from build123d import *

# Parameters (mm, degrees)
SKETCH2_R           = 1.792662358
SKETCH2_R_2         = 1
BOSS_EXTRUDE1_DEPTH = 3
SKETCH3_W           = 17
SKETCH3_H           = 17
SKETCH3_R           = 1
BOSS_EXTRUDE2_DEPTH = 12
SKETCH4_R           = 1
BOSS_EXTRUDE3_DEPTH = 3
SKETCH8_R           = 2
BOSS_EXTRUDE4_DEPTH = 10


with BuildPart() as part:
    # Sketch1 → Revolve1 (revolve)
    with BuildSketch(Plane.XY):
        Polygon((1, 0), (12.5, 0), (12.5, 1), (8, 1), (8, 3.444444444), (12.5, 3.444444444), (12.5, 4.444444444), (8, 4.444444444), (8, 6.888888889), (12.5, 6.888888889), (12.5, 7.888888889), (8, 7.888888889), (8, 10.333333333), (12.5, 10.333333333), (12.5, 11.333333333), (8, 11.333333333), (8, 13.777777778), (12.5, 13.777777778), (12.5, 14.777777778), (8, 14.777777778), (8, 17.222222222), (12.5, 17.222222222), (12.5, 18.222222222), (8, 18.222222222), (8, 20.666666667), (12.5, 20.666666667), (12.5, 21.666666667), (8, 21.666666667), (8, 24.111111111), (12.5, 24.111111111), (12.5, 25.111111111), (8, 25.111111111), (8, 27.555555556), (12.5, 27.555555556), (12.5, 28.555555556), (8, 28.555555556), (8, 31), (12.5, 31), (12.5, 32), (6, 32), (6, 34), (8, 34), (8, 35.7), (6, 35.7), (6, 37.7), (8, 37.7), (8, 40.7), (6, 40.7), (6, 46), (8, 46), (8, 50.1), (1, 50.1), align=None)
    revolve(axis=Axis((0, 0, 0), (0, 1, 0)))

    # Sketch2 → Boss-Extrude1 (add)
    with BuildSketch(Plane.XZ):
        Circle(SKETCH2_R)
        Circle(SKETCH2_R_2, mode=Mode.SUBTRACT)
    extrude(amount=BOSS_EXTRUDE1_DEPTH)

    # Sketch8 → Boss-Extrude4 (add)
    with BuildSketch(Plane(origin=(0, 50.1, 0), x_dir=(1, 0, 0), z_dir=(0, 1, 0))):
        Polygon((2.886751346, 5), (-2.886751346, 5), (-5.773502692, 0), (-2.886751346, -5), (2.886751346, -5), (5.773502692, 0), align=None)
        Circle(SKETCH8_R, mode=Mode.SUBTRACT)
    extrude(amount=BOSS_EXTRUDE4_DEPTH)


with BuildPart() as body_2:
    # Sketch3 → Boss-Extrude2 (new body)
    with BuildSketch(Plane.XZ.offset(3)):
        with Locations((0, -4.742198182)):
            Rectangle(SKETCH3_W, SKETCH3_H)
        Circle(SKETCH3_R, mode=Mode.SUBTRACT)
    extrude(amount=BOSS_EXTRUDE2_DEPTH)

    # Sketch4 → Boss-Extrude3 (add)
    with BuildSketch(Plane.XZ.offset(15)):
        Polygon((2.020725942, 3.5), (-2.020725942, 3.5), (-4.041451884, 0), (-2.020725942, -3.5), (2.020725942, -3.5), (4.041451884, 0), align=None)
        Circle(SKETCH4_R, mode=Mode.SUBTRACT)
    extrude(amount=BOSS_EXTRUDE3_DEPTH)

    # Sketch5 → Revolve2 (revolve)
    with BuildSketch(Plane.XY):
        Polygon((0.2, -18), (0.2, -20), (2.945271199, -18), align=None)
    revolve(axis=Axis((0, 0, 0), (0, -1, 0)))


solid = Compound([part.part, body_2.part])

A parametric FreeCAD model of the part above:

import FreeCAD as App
import Part
import Sketcher

V = App.Vector
Q = App.Units.Quantity

doc = App.newDocument("Part")
params = doc.addObject("Spreadsheet::Sheet", "Params")
for row, (alias, value) in enumerate([
    ("sketch1_width", "2 mm"),
    ("sketch1_width2", "7 mm"),
    ("sketch1_height", "1 mm"),
    ("sketch1_height2", "3 mm"),
    ("sketch1_width3", "11.5 mm"),
    ("revolution_angle", "360 deg"),
    ("sketch2_diameter", "2 mm"),
    ("pad1_length", "3 mm"),
    ("sketch3_diameter", "4 mm"),
    ("pad2_length", "10 mm"),
    ("sketch4_diameter", "2 mm"),
    ("sketch4_width", "17 mm"),
    ("pad3_length", "12 mm"),
    ("sketch5_diameter", "2 mm"),
    ("pad4_length", "3 mm"),
    ("sketch6_height", "2 mm"),
    ("revolution2_angle", "360 deg"),
], start=1):
    params.set(f"A{row}", alias)
    params.set(f"B{row}", "=" + value)
    params.setAlias(f"B{row}", alias)

body = doc.addObject("PartDesign::Body", "Body")

# Sketch on XY plane
sketch1 = body.newObject("Sketcher::SketchObject", "Sketch")
sketch1.AttachmentSupport = (doc.getObject("XY_Plane"), [""])
sketch1.MapMode = "FlatFace"
sketch1.addGeometry([
    Part.LineSegment(V(1, 0, 0), V(12.5, 0, 0)),  # 0
    Part.LineSegment(V(12.5, 0, 0), V(12.5, 1, 0)),  # 1
    Part.LineSegment(V(12.5, 1, 0), V(8, 1, 0)),  # 2
    Part.LineSegment(V(8, 1, 0), V(8, 3.4, 0)),  # 3
    Part.LineSegment(V(8, 3.4, 0), V(12.5, 3.4, 0)),  # 4
    Part.LineSegment(V(12.5, 3.4, 0), V(12.5, 4.4, 0)),  # 5
    Part.LineSegment(V(12.5, 4.4, 0), V(8, 4.4, 0)),  # 6
    Part.LineSegment(V(8, 4.4, 0), V(8, 6.9, 0)),  # 7
    Part.LineSegment(V(8, 6.9, 0), V(12.5, 6.9, 0)),  # 8
    Part.LineSegment(V(12.5, 6.9, 0), V(12.5, 7.9, 0)),  # 9
    Part.LineSegment(V(12.5, 7.9, 0), V(8, 7.9, 0)),  # 10
    Part.LineSegment(V(8, 7.9, 0), V(8, 10.3, 0)),  # 11
    Part.LineSegment(V(8, 10.3, 0), V(12.5, 10.3, 0)),  # 12
    Part.LineSegment(V(12.5, 10.3, 0), V(12.5, 11.3, 0)),  # 13
    Part.LineSegment(V(12.5, 11.3, 0), V(8, 11.3, 0)),  # 14
    Part.LineSegment(V(8, 11.3, 0), V(8, 13.8, 0)),  # 15
    Part.LineSegment(V(8, 13.8, 0), V(12.5, 13.8, 0)),  # 16
    Part.LineSegment(V(12.5, 13.8, 0), V(12.5, 14.8, 0)),  # 17
    Part.LineSegment(V(12.5, 14.8, 0), V(8, 14.8, 0)),  # 18
    Part.LineSegment(V(8, 14.8, 0), V(8, 17.2, 0)),  # 19
    Part.LineSegment(V(8, 17.2, 0), V(12.5, 17.2, 0)),  # 20
    Part.LineSegment(V(12.5, 17.2, 0), V(12.5, 18.2, 0)),  # 21
    Part.LineSegment(V(12.5, 18.2, 0), V(8, 18.2, 0)),  # 22
    Part.LineSegment(V(8, 18.2, 0), V(8, 20.7, 0)),  # 23
    Part.LineSegment(V(8, 20.7, 0), V(12.5, 20.7, 0)),  # 24
    Part.LineSegment(V(12.5, 20.7, 0), V(12.5, 21.7, 0)),  # 25
    Part.LineSegment(V(12.5, 21.7, 0), V(8, 21.7, 0)),  # 26
    Part.LineSegment(V(8, 21.7, 0), V(8, 24.1, 0)),  # 27
    Part.LineSegment(V(8, 24.1, 0), V(12.5, 24.1, 0)),  # 28
    Part.LineSegment(V(12.5, 24.1, 0), V(12.5, 25.1, 0)),  # 29
    Part.LineSegment(V(12.5, 25.1, 0), V(8, 25.1, 0)),  # 30
    Part.LineSegment(V(8, 25.1, 0), V(8, 27.6, 0)),  # 31
    Part.LineSegment(V(8, 27.6, 0), V(12.5, 27.6, 0)),  # 32
    Part.LineSegment(V(12.5, 27.6, 0), V(12.5, 28.6, 0)),  # 33
    Part.LineSegment(V(12.5, 28.6, 0), V(8, 28.6, 0)),  # 34
    Part.LineSegment(V(8, 28.6, 0), V(8, 31, 0)),  # 35
    Part.LineSegment(V(8, 31, 0), V(12.5, 31, 0)),  # 36
    Part.LineSegment(V(12.5, 31, 0), V(12.5, 32, 0)),  # 37
    Part.LineSegment(V(12.5, 32, 0), V(6, 32, 0)),  # 38
    Part.LineSegment(V(6, 32, 0), V(6, 34, 0)),  # 39
    Part.LineSegment(V(6, 34, 0), V(8, 34, 0)),  # 40
    Part.LineSegment(V(8, 34, 0), V(8, 35.7, 0)),  # 41
    Part.LineSegment(V(8, 35.7, 0), V(6, 35.7, 0)),  # 42
    Part.LineSegment(V(6, 35.7, 0), V(6, 37.7, 0)),  # 43
    Part.LineSegment(V(6, 37.7, 0), V(8, 37.7, 0)),  # 44
    Part.LineSegment(V(8, 37.7, 0), V(8, 40.7, 0)),  # 45
    Part.LineSegment(V(8, 40.7, 0), V(6, 40.7, 0)),  # 46
    Part.LineSegment(V(6, 40.7, 0), V(6, 46, 0)),  # 47
    Part.LineSegment(V(6, 46, 0), V(8, 46, 0)),  # 48
    Part.LineSegment(V(8, 46, 0), V(8, 50.1, 0)),  # 49
    Part.LineSegment(V(8, 50.1, 0), V(1, 50.1, 0)),  # 50
    Part.LineSegment(V(1, 50.1, 0), V(1, 0, 0)),  # 51
], False)
sketch1.addConstraint([
    Sketcher.Constraint("Coincident", 0, 2, 1, 1),
    Sketcher.Constraint("Coincident", 1, 2, 2, 1),
    Sketcher.Constraint("Coincident", 2, 2, 3, 1),
    Sketcher.Constraint("Coincident", 3, 2, 4, 1),
    Sketcher.Constraint("Coincident", 4, 2, 5, 1),
    Sketcher.Constraint("Coincident", 5, 2, 6, 1),
    Sketcher.Constraint("Coincident", 6, 2, 7, 1),
    Sketcher.Constraint("Coincident", 7, 2, 8, 1),
    Sketcher.Constraint("Coincident", 8, 2, 9, 1),
    Sketcher.Constraint("Coincident", 9, 2, 10, 1),
    Sketcher.Constraint("Coincident", 10, 2, 11, 1),
    Sketcher.Constraint("Coincident", 11, 2, 12, 1),
    Sketcher.Constraint("Coincident", 12, 2, 13, 1),
    Sketcher.Constraint("Coincident", 13, 2, 14, 1),
    Sketcher.Constraint("Coincident", 14, 2, 15, 1),
    Sketcher.Constraint("Coincident", 15, 2, 16, 1),
    Sketcher.Constraint("Coincident", 16, 2, 17, 1),
    Sketcher.Constraint("Coincident", 17, 2, 18, 1),
    Sketcher.Constraint("Coincident", 18, 2, 19, 1),
    Sketcher.Constraint("Coincident", 19, 2, 20, 1),
    Sketcher.Constraint("Coincident", 20, 2, 21, 1),
    Sketcher.Constraint("Coincident", 21, 2, 22, 1),
    Sketcher.Constraint("Coincident", 22, 2, 23, 1),
    Sketcher.Constraint("Coincident", 23, 2, 24, 1),
    Sketcher.Constraint("Coincident", 24, 2, 25, 1),
    Sketcher.Constraint("Coincident", 25, 2, 26, 1),
    Sketcher.Constraint("Coincident", 26, 2, 27, 1),
    Sketcher.Constraint("Coincident", 27, 2, 28, 1),
    Sketcher.Constraint("Coincident", 28, 2, 29, 1),
    Sketcher.Constraint("Coincident", 29, 2, 30, 1),
    Sketcher.Constraint("Coincident", 30, 2, 31, 1),
    Sketcher.Constraint("Coincident", 31, 2, 32, 1),
    Sketcher.Constraint("Coincident", 32, 2, 33, 1),
    Sketcher.Constraint("Coincident", 33, 2, 34, 1),
    Sketcher.Constraint("Coincident", 34, 2, 35, 1),
    Sketcher.Constraint("Coincident", 35, 2, 36, 1),
    Sketcher.Constraint("Coincident", 36, 2, 37, 1),
    Sketcher.Constraint("Coincident", 37, 2, 38, 1),
    Sketcher.Constraint("Coincident", 38, 2, 39, 1),
    Sketcher.Constraint("Coincident", 39, 2, 40, 1),
    Sketcher.Constraint("Coincident", 40, 2, 41, 1),
    Sketcher.Constraint("Coincident", 41, 2, 42, 1),
    Sketcher.Constraint("Coincident", 42, 2, 43, 1),
    Sketcher.Constraint("Coincident", 43, 2, 44, 1),
    Sketcher.Constraint("Coincident", 44, 2, 45, 1),
    Sketcher.Constraint("Coincident", 45, 2, 46, 1),
    Sketcher.Constraint("Coincident", 46, 2, 47, 1),
    Sketcher.Constraint("Coincident", 47, 2, 48, 1),
    Sketcher.Constraint("Coincident", 48, 2, 49, 1),
    Sketcher.Constraint("Coincident", 49, 2, 50, 1),
    Sketcher.Constraint("Coincident", 50, 2, 51, 1),
    Sketcher.Constraint("Coincident", 51, 2, 0, 1),
    Sketcher.Constraint("Horizontal", 0),
    Sketcher.Constraint("Vertical", 1),
    Sketcher.Constraint("Horizontal", 2),
    Sketcher.Constraint("Vertical", 3),
    Sketcher.Constraint("Horizontal", 4),
    Sketcher.Constraint("Vertical", 5),
    Sketcher.Constraint("Horizontal", 6),
    Sketcher.Constraint("Vertical", 7),
    Sketcher.Constraint("Horizontal", 8),
    Sketcher.Constraint("Vertical", 9),
    Sketcher.Constraint("Horizontal", 10),
    Sketcher.Constraint("Vertical", 11),
    Sketcher.Constraint("Horizontal", 12),
    Sketcher.Constraint("Vertical", 13),
    Sketcher.Constraint("Horizontal", 14),
    Sketcher.Constraint("Vertical", 15),
    Sketcher.Constraint("Horizontal", 16),
    Sketcher.Constraint("Vertical", 17),
    Sketcher.Constraint("Horizontal", 18),
    Sketcher.Constraint("Vertical", 19),
    Sketcher.Constraint("Horizontal", 20),
    Sketcher.Constraint("Vertical", 21),
    Sketcher.Constraint("Horizontal", 22),
    Sketcher.Constraint("Vertical", 23),
    Sketcher.Constraint("Horizontal", 24),
    Sketcher.Constraint("Vertical", 25),
    Sketcher.Constraint("Horizontal", 26),
    Sketcher.Constraint("Vertical", 27),
    Sketcher.Constraint("Horizontal", 28),
    Sketcher.Constraint("Vertical", 29),
    Sketcher.Constraint("Horizontal", 30),
    Sketcher.Constraint("Vertical", 31),
    Sketcher.Constraint("Horizontal", 32),
    Sketcher.Constraint("Vertical", 33),
    Sketcher.Constraint("Horizontal", 34),
    Sketcher.Constraint("Vertical", 35),
    Sketcher.Constraint("Horizontal", 36),
    Sketcher.Constraint("Vertical", 37),
    Sketcher.Constraint("Horizontal", 38),
    Sketcher.Constraint("Vertical", 39),
    Sketcher.Constraint("Horizontal", 40),
    Sketcher.Constraint("Vertical", 41),
    Sketcher.Constraint("Horizontal", 42),
    Sketcher.Constraint("Vertical", 43),
    Sketcher.Constraint("Horizontal", 44),
    Sketcher.Constraint("Vertical", 45),
    Sketcher.Constraint("Horizontal", 46),
    Sketcher.Constraint("Vertical", 47),
    Sketcher.Constraint("Horizontal", 48),
    Sketcher.Constraint("Vertical", 49),
    Sketcher.Constraint("Horizontal", 50),
    Sketcher.Constraint("Vertical", 51),
    Sketcher.Constraint("PointOnObject", 0, 2, -1),
    Sketcher.Constraint("Vertical", 1, 2, 4, 2),
    Sketcher.Constraint("Vertical", 3, 2, 6, 2),
    Sketcher.Constraint("Vertical", 5, 2, 8, 2),
    Sketcher.Constraint("Vertical", 7, 2, 10, 2),
    Sketcher.Constraint("Vertical", 9, 2, 12, 2),
    Sketcher.Constraint("Vertical", 11, 2, 14, 2),
    Sketcher.Constraint("Vertical", 13, 2, 16, 2),
    Sketcher.Constraint("Vertical", 15, 2, 18, 2),
    Sketcher.Constraint("Vertical", 17, 2, 20, 2),
    Sketcher.Constraint("Vertical", 19, 2, 22, 2),
    Sketcher.Constraint("Vertical", 21, 2, 24, 2),
    Sketcher.Constraint("Vertical", 23, 2, 26, 2),
    Sketcher.Constraint("Vertical", 25, 2, 28, 2),
    Sketcher.Constraint("Vertical", 27, 2, 30, 2),
    Sketcher.Constraint("Vertical", 29, 2, 32, 2),
    Sketcher.Constraint("Vertical", 31, 2, 34, 2),
    Sketcher.Constraint("Vertical", 33, 2, 36, 2),
    Sketcher.Constraint("Vertical", 35, 2, 40, 2),
    Sketcher.Constraint("Vertical", 39, 2, 42, 2),
    Sketcher.Constraint("Vertical", 41, 2, 44, 2),
    Sketcher.Constraint("Vertical", 43, 2, 46, 2),
    Sketcher.Constraint("Vertical", 45, 2, 48, 2),
    Sketcher.Constraint("Equal", 1, 5),
    Sketcher.Constraint("Equal", 3, 7),
    Sketcher.Constraint("Equal", 5, 9),
    Sketcher.Constraint("Equal", 7, 11),
    Sketcher.Constraint("Equal", 9, 13),
    Sketcher.Constraint("Equal", 11, 15),
    Sketcher.Constraint("Equal", 13, 17),
    Sketcher.Constraint("Equal", 15, 19),
    Sketcher.Constraint("Equal", 17, 21),
    Sketcher.Constraint("Equal", 19, 23),
    Sketcher.Constraint("Equal", 21, 25),
    Sketcher.Constraint("Equal", 23, 27),
    Sketcher.Constraint("Equal", 25, 29),
    Sketcher.Constraint("Equal", 27, 31),
    Sketcher.Constraint("Equal", 29, 33),
    Sketcher.Constraint("Equal", 31, 35),
    Sketcher.Constraint("Equal", 33, 37),
    Sketcher.Constraint("Equal", 48, 39),
    Sketcher.Constraint("Equal", 39, 43),
    Sketcher.Constraint("DistanceX", 40, 1, 40, 2, 2.0),
    Sketcher.Constraint("DistanceX", 50, 2, 50, 1, 7.0),
    Sketcher.Constraint("DistanceY", 1, 1, 1, 2, 1.0),
    Sketcher.Constraint("DistanceY", 45, 1, 45, 2, 3.0),
    Sketcher.Constraint("DistanceX", 0, 1, 0, 2, 11.5),
    Sketcher.Constraint("DistanceY", 41, 1, 41, 2, 1.7),
    Sketcher.Constraint("DistanceY", 47, 1, 47, 2, 5.3),
    Sketcher.Constraint("DistanceY", 49, 1, 49, 2, 4.1),
    Sketcher.Constraint("DistanceY", 51, 2, 51, 1, 50.1),
    Sketcher.Constraint("DistanceX", -1, 1, 2, 2, 8.0),
])
sketch1.setExpression("Constraints[146]", "Params.sketch1_width")
sketch1.setExpression("Constraints[147]", "Params.sketch1_width2")
sketch1.setExpression("Constraints[148]", "Params.sketch1_height")
sketch1.setExpression("Constraints[149]", "Params.sketch1_height2")
sketch1.setExpression("Constraints[150]", "Params.sketch1_width3")
revolution = body.newObject("PartDesign::Revolution", "Revolution")
revolution.Profile = sketch1
revolution.ReferenceAxis = (sketch1, ["V_Axis"])
revolution.setExpression("Angle", "Params.revolution_angle")

# Sketch on XZ plane
sketch2 = body.newObject("Sketcher::SketchObject", "Sketch001")
sketch2.AttachmentSupport = (doc.getObject("XZ_Plane"), [""])
sketch2.MapMode = "FlatFace"
sketch2.addGeometry([
    Part.Circle(V(0, 0, 0), V(0, 0, 1), 1.8),
    Part.Circle(V(0, 0, 0), V(0, 0, 1), 1),
], False)
sketch2.addConstraint([
    Sketcher.Constraint("Coincident", 0, 3, -1, 1),
    Sketcher.Constraint("Coincident", 1, 3, -1, 1),
    Sketcher.Constraint("Diameter", 1, 2.0),
    Sketcher.Constraint("Diameter", 0, 3.585325),
])
sketch2.setExpression("Constraints[2]", "Params.sketch2_diameter")
pad1 = body.newObject("PartDesign::Pad", "Pad")
pad1.Profile = sketch2
pad1.setExpression("Length", "Params.pad1_length")

# Sketch on XZ plane
sketch3 = body.newObject("Sketcher::SketchObject", "Sketch002")
sketch3.AttachmentSupport = (doc.getObject("XZ_Plane"), [""])
sketch3.MapMode = "FlatFace"
sketch3.AttachmentOffset = App.Placement(V(0, 0, -50.1), App.Rotation())
sketch3.addGeometry([
    Part.LineSegment(V(2.9, -5, 0), V(-2.9, -5, 0)),  # 0
    Part.LineSegment(V(-2.9, -5, 0), V(-5.8, 0, 0)),  # 1
    Part.LineSegment(V(-5.8, 0, 0), V(-2.9, 5, 0)),  # 2
    Part.LineSegment(V(-2.9, 5, 0), V(2.9, 5, 0)),  # 3
    Part.LineSegment(V(2.9, 5, 0), V(5.8, 0, 0)),  # 4
    Part.LineSegment(V(5.8, 0, 0), V(2.9, -5, 0)),  # 5
    Part.Circle(V(0, 0, 0), V(0, 0, 1), 2),  # 6
], False)
sketch3.addConstraint([
    Sketcher.Constraint("Coincident", 0, 2, 1, 1),
    Sketcher.Constraint("Coincident", 1, 2, 2, 1),
    Sketcher.Constraint("Coincident", 2, 2, 3, 1),
    Sketcher.Constraint("Coincident", 3, 2, 4, 1),
    Sketcher.Constraint("Coincident", 4, 2, 5, 1),
    Sketcher.Constraint("Coincident", 5, 2, 0, 1),
    Sketcher.Constraint("Horizontal", 0),
    Sketcher.Constraint("Horizontal", 3),
    Sketcher.Constraint("Coincident", 6, 3, -1, 1),
    Sketcher.Constraint("Symmetric", 0, 2, 3, 2, -1, 1),
    Sketcher.Constraint("Symmetric", 1, 2, 4, 2, -1, 1),
    Sketcher.Constraint("PointOnObject", 1, 2, -1),
    Sketcher.Constraint("Parallel", 2, 5),
    Sketcher.Constraint("Vertical", 0, 2, 2, 2),
    Sketcher.Constraint("Diameter", 6, 4.0),
    Sketcher.Constraint("Angle", 1, Q("120 deg")),
    Sketcher.Constraint("DistanceY", 0, 2, -1, 1, 5.0),
    Sketcher.Constraint("DistanceX", 0, 2, 0, 1, 5.773503),
])
sketch3.setExpression("Constraints[14]", "Params.sketch3_diameter")
pad2 = body.newObject("PartDesign::Pad", "Pad001")
pad2.Profile = sketch3
pad2.setExpression("Length", "Params.pad2_length")
pad2.Reversed = True
body2 = doc.addObject("PartDesign::Body", "Body001")

# Sketch on XZ plane
sketch4 = body2.newObject("Sketcher::SketchObject", "Sketch003")
sketch4.AttachmentSupport = (doc.getObject("XZ_Plane001"), [""])
sketch4.MapMode = "FlatFace"
sketch4.AttachmentOffset = App.Placement(V(0, 0, 3), App.Rotation())
sketch4.addGeometry([
    Part.LineSegment(V(-8.5, 3.8, 0), V(-8.5, -13.2, 0)),  # 0
    Part.LineSegment(V(-8.5, -13.2, 0), V(8.5, -13.2, 0)),  # 1
    Part.LineSegment(V(8.5, -13.2, 0), V(8.5, 3.8, 0)),  # 2
    Part.LineSegment(V(8.5, 3.8, 0), V(-8.5, 3.8, 0)),  # 3
    Part.Circle(V(0, 0, 0), V(0, 0, 1), 1),  # 4
], False)
sketch4.addConstraint([
    Sketcher.Constraint("Coincident", 0, 2, 1, 1),
    Sketcher.Constraint("Coincident", 1, 2, 2, 1),
    Sketcher.Constraint("Coincident", 2, 2, 3, 1),
    Sketcher.Constraint("Coincident", 3, 2, 0, 1),
    Sketcher.Constraint("Vertical", 0),
    Sketcher.Constraint("Horizontal", 1),
    Sketcher.Constraint("Vertical", 2),
    Sketcher.Constraint("Horizontal", 3),
    Sketcher.Constraint("Coincident", 4, 3, -1, 1),
    Sketcher.Constraint("Equal", 3, 0),
    Sketcher.Constraint("Diameter", 4, 2.0),
    Sketcher.Constraint("DistanceX", 1, 1, 1, 2, 17.0),
    Sketcher.Constraint("DistanceX", 0, 2, -1, 1, 8.5),
    Sketcher.Constraint("DistanceY", 0, 2, -1, 1, 13.242198),
])
sketch4.setExpression("Constraints[10]", "Params.sketch4_diameter")
sketch4.setExpression("Constraints[11]", "Params.sketch4_width")
pad3 = body2.newObject("PartDesign::Pad", "Pad002")
pad3.Profile = sketch4
pad3.setExpression("Length", "Params.pad3_length")

# Sketch on XZ plane
sketch5 = body2.newObject("Sketcher::SketchObject", "Sketch004")
sketch5.AttachmentSupport = (doc.getObject("XZ_Plane001"), [""])
sketch5.MapMode = "FlatFace"
sketch5.AttachmentOffset = App.Placement(V(0, 0, 15), App.Rotation())
sketch5.addGeometry([
    Part.LineSegment(V(2, 3.5, 0), V(-2, 3.5, 0)),  # 0
    Part.LineSegment(V(-2, 3.5, 0), V(-4, 0, 0)),  # 1
    Part.LineSegment(V(-4, 0, 0), V(-2, -3.5, 0)),  # 2
    Part.LineSegment(V(-2, -3.5, 0), V(2, -3.5, 0)),  # 3
    Part.LineSegment(V(2, -3.5, 0), V(4, 0, 0)),  # 4
    Part.LineSegment(V(4, 0, 0), V(2, 3.5, 0)),  # 5
    Part.Circle(V(0, 0, 0), V(0, 0, 1), 1),  # 6
], False)
sketch5.addConstraint([
    Sketcher.Constraint("Coincident", 0, 2, 1, 1),
    Sketcher.Constraint("Coincident", 1, 2, 2, 1),
    Sketcher.Constraint("Coincident", 2, 2, 3, 1),
    Sketcher.Constraint("Coincident", 3, 2, 4, 1),
    Sketcher.Constraint("Coincident", 4, 2, 5, 1),
    Sketcher.Constraint("Coincident", 5, 2, 0, 1),
    Sketcher.Constraint("Horizontal", 0),
    Sketcher.Constraint("Horizontal", 3),
    Sketcher.Constraint("Coincident", 6, 3, -1, 1),
    Sketcher.Constraint("Symmetric", 0, 2, 3, 2, -1, 1),
    Sketcher.Constraint("Symmetric", 1, 2, 4, 2, -1, 1),
    Sketcher.Constraint("PointOnObject", 1, 2, -1),
    Sketcher.Constraint("Parallel", 2, 5),
    Sketcher.Constraint("Vertical", 0, 2, 2, 2),
    Sketcher.Constraint("Diameter", 6, 2.0),
    Sketcher.Constraint("Angle", 1, Q("-120 deg")),
    Sketcher.Constraint("DistanceY", 2, 2, 0, 2, 7.0),
    Sketcher.Constraint("DistanceX", 0, 2, 0, 1, 4.041452),
])
sketch5.setExpression("Constraints[14]", "Params.sketch5_diameter")
pad4 = body2.newObject("PartDesign::Pad", "Pad003")
pad4.Profile = sketch5
pad4.setExpression("Length", "Params.pad4_length")

# Sketch on XY plane
sketch6 = body2.newObject("Sketcher::SketchObject", "Sketch005")
sketch6.AttachmentSupport = (doc.getObject("XY_Plane001"), [""])
sketch6.MapMode = "FlatFace"
sketch6.addGeometry([
    Part.LineSegment(V(0.2, -18, 0), V(0.2, -20, 0)),
    Part.LineSegment(V(0.2, -20, 0), V(2.9, -18, 0)),
    Part.LineSegment(V(2.9, -18, 0), V(0.2, -18, 0)),
], False)
sketch6.addConstraint([
    Sketcher.Constraint("Coincident", 0, 2, 1, 1),
    Sketcher.Constraint("Coincident", 1, 2, 2, 1),
    Sketcher.Constraint("Coincident", 2, 2, 0, 1),
    Sketcher.Constraint("Vertical", 0),
    Sketcher.Constraint("Horizontal", 2),
    Sketcher.Constraint("DistanceY", 0, 2, 0, 1, 2.0),
    Sketcher.Constraint("DistanceY", 0, 2, -1, 1, 20.0),
    Sketcher.Constraint("DistanceX", -1, 1, 0, 2, 0.2),
    Sketcher.Constraint("DistanceX", 2, 2, 2, 1, 2.745271),
])
sketch6.setExpression("Constraints[5]", "Params.sketch6_height")
revolution2 = body2.newObject("PartDesign::Revolution", "Revolution001")
revolution2.Profile = sketch6
revolution2.ReferenceAxis = (sketch6, ["V_Axis"])
revolution2.setExpression("Angle", "Params.revolution2_angle")

doc.recompute()
